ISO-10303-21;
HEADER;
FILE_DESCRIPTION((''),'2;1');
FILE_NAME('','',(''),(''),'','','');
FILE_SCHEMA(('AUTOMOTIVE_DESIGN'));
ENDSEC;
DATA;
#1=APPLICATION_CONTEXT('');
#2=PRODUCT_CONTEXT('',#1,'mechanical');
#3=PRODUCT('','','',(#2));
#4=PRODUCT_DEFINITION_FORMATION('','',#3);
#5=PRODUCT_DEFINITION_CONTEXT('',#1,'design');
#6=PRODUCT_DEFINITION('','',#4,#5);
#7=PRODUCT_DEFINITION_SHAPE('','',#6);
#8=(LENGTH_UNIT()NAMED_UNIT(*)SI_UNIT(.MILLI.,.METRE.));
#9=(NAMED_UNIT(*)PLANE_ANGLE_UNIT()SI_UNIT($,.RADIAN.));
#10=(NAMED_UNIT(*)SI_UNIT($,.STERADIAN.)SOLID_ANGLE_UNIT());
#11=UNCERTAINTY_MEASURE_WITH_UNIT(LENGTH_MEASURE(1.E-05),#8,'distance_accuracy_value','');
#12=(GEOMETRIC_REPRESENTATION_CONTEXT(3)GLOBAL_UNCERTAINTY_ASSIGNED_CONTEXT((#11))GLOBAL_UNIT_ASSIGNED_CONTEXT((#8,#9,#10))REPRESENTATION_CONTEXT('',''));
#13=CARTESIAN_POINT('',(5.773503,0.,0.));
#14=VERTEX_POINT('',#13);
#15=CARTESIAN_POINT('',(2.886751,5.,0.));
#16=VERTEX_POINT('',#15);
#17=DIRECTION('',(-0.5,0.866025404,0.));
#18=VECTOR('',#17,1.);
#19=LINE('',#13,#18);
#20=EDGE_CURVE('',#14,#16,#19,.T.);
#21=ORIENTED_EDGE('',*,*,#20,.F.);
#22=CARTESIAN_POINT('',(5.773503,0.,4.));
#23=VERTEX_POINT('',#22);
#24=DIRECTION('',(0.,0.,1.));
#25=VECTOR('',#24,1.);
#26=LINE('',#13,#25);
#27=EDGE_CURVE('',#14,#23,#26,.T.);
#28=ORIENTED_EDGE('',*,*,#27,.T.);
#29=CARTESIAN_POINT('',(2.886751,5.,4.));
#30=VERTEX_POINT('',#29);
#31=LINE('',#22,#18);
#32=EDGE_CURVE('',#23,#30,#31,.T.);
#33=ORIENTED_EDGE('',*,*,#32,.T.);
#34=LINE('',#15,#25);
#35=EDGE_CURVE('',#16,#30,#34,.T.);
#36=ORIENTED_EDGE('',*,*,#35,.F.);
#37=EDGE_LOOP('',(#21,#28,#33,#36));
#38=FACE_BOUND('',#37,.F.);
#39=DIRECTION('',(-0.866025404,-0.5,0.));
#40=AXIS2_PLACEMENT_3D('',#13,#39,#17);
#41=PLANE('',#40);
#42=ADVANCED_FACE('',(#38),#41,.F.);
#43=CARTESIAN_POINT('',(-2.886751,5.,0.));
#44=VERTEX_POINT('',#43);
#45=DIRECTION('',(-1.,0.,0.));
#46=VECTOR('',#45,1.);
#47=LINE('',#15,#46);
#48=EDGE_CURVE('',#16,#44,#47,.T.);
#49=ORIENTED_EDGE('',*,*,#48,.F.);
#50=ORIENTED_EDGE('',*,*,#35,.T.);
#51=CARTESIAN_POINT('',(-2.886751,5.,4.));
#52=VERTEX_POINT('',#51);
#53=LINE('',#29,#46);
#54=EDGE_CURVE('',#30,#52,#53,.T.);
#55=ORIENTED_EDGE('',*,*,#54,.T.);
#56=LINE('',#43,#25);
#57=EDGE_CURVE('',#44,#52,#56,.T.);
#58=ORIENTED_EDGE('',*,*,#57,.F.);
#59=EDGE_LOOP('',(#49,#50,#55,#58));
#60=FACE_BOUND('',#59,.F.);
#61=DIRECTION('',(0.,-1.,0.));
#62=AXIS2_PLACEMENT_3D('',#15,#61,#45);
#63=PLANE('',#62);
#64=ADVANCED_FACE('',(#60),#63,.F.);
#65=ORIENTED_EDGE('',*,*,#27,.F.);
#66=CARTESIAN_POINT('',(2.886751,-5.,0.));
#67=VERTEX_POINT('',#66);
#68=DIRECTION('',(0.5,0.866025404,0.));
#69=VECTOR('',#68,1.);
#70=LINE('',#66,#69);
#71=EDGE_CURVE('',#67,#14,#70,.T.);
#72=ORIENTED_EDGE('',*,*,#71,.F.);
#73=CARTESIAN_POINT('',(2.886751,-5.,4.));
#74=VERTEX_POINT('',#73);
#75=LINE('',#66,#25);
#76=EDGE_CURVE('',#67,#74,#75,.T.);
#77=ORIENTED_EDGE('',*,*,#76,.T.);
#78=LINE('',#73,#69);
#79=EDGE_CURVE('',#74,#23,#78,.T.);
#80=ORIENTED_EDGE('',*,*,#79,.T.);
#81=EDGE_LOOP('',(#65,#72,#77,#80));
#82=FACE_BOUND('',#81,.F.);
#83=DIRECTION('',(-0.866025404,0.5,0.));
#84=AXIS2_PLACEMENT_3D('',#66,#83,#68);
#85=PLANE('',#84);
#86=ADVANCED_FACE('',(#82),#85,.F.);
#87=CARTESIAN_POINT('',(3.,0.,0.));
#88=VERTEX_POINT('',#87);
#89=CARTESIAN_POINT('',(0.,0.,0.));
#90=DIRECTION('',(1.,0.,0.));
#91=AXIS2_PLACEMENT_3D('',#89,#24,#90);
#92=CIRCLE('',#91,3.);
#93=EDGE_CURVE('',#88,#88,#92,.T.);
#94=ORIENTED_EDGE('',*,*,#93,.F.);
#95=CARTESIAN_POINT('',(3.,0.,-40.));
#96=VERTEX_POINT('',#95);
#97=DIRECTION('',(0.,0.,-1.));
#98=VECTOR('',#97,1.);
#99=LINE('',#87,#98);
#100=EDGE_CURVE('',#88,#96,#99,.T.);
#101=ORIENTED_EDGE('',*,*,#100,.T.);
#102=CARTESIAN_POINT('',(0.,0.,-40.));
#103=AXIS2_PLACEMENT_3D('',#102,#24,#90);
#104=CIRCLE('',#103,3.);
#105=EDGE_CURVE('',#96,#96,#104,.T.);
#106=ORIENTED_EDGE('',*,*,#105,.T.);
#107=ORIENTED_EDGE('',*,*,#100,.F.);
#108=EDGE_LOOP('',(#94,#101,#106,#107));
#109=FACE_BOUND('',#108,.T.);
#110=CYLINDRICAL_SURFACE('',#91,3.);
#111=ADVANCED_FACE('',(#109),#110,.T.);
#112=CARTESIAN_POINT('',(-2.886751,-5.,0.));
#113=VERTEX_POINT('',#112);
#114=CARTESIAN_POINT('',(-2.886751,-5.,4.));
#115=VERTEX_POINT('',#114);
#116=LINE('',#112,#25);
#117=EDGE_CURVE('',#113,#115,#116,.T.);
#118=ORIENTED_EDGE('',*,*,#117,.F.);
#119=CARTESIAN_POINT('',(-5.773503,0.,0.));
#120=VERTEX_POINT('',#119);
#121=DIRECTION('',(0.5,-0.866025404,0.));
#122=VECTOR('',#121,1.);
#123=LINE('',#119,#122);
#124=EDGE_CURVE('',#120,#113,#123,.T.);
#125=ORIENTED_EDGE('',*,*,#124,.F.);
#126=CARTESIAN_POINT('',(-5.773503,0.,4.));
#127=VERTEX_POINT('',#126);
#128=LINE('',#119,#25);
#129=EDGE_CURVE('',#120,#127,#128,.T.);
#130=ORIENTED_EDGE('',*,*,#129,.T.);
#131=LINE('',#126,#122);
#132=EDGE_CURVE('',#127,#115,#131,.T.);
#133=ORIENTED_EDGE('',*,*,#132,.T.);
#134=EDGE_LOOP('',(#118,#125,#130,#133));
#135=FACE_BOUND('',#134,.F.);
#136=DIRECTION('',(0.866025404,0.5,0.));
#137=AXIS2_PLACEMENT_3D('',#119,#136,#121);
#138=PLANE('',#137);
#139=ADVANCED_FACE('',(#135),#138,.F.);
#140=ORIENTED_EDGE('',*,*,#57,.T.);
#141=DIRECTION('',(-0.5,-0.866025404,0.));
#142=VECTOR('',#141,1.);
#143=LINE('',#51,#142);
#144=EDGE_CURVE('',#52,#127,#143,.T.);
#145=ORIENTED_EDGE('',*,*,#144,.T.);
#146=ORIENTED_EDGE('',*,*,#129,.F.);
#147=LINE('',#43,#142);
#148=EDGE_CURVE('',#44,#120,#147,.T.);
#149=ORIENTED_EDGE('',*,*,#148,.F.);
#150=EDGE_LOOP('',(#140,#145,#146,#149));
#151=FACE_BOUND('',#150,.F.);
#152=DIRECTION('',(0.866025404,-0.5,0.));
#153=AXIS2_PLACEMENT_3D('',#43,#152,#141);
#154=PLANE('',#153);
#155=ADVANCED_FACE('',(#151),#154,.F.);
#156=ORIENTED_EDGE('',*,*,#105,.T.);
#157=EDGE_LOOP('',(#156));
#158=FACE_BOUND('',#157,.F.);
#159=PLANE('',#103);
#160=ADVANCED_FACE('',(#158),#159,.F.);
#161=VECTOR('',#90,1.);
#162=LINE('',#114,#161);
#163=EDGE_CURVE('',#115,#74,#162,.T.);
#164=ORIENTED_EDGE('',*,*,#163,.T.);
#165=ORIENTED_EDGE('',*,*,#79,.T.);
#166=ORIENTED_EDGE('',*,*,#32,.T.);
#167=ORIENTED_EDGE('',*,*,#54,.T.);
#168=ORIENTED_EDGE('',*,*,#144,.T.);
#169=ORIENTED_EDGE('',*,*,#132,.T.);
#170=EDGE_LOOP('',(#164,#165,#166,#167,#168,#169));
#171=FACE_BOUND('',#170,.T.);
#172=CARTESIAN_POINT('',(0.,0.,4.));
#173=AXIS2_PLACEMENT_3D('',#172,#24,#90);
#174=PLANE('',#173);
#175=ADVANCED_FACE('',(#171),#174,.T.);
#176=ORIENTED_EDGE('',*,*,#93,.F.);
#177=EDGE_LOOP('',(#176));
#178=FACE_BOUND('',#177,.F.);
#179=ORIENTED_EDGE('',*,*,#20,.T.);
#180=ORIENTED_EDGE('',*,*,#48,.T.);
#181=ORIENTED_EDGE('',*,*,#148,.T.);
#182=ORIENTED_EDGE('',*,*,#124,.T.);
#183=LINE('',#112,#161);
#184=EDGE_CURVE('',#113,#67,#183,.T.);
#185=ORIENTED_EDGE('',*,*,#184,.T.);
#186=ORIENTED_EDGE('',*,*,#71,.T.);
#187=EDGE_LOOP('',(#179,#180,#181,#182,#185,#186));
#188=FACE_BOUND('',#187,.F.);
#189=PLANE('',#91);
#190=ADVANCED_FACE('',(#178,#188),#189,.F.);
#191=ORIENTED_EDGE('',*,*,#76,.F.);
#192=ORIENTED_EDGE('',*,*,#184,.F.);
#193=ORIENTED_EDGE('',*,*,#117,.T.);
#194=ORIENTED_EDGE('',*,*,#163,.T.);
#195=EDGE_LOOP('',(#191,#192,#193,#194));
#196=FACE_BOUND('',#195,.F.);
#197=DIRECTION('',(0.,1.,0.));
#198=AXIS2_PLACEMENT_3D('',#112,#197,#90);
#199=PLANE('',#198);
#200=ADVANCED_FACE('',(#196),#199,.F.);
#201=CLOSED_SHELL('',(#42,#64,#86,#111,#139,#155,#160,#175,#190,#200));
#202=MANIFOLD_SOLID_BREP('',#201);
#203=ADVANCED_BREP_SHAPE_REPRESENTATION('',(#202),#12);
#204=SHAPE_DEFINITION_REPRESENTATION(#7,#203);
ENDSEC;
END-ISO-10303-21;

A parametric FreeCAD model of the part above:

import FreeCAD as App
import Part
import Sketcher

V = App.Vector
Q = App.Units.Quantity


def add_polygon(sketch, points):
    """Adds a closed chain of lines whose ends are joined by coincident constraints."""
    first, n = sketch.GeometryCount, len(points)
    for a, b in zip(points, points[1:] + points[:1]):
        sketch.addGeometry(Part.LineSegment(App.Vector(*a, 0), App.Vector(*b, 0)), False)
    for i in range(n):
        sketch.addConstraint(Sketcher.Constraint("Coincident", first + i, 2, first + (i + 1) % n, 1))

doc = App.newDocument("Part")
body = doc.addObject("PartDesign::Body", "Body")

# Sketch on XY plane
sketch1 = body.newObject("Sketcher::SketchObject", "Sketch")
sketch1.AttachmentSupport = (doc.getObject("XY_Plane"), [""])
sketch1.MapMode = "FlatFace"
add_polygon(sketch1, [(2.886751, 5), (-2.886751, 5), (-5.773503, 0), (-2.886751, -5), (2.886751, -5), (5.773503, 0)])  # lines 0-5
sketch1.addConstraint(Sketcher.Constraint("Horizontal", 0))
sketch1.addConstraint(Sketcher.Constraint("Horizontal", 3))
sketch1.addConstraint(Sketcher.Constraint("Symmetric", 0, 2, 3, 2, -1, 1))
sketch1.addConstraint(Sketcher.Constraint("Symmetric", 1, 2, 4, 2, -1, 1))
sketch1.addConstraint(Sketcher.Constraint("PointOnObject", 1, 2, -1))
sketch1.addConstraint(Sketcher.Constraint("Parallel", 2, 5))
sketch1.addConstraint(Sketcher.Constraint("Vertical", 0, 2, 2, 2))
sketch1.addConstraint(Sketcher.Constraint("Angle", 1, Q("-120 deg")))
sketch1.addConstraint(Sketcher.Constraint("DistanceY", -1, 1, 0, 2, Q("5 mm")))
sketch1.addConstraint(Sketcher.Constraint("DistanceX", 0, 2, 0, 1, Q("5.773503 mm")))
pad1 = body.newObject("PartDesign::Pad", "Pad")
pad1.Profile = sketch1
pad1.Length = 4

# Sketch on XY plane
sketch2 = body.newObject("Sketcher::SketchObject", "Sketch001")
sketch2.AttachmentSupport = (doc.getObject("XY_Plane"), [""])
sketch2.MapMode = "FlatFace"
sketch2.addGeometry(Part.Circle(V(0, 0, 0), V(0, 0, 1), 3), False)
sketch2.addConstraint(Sketcher.Constraint("Coincident", 0, 3, -1, 1))
sketch2.addConstraint(Sketcher.Constraint("Diameter", 0, Q("6 mm")))
pad2 = body.newObject("PartDesign::Pad", "Pad001")
pad2.Profile = sketch2
pad2.Length = 40
pad2.Reversed = True

doc.recompute()
